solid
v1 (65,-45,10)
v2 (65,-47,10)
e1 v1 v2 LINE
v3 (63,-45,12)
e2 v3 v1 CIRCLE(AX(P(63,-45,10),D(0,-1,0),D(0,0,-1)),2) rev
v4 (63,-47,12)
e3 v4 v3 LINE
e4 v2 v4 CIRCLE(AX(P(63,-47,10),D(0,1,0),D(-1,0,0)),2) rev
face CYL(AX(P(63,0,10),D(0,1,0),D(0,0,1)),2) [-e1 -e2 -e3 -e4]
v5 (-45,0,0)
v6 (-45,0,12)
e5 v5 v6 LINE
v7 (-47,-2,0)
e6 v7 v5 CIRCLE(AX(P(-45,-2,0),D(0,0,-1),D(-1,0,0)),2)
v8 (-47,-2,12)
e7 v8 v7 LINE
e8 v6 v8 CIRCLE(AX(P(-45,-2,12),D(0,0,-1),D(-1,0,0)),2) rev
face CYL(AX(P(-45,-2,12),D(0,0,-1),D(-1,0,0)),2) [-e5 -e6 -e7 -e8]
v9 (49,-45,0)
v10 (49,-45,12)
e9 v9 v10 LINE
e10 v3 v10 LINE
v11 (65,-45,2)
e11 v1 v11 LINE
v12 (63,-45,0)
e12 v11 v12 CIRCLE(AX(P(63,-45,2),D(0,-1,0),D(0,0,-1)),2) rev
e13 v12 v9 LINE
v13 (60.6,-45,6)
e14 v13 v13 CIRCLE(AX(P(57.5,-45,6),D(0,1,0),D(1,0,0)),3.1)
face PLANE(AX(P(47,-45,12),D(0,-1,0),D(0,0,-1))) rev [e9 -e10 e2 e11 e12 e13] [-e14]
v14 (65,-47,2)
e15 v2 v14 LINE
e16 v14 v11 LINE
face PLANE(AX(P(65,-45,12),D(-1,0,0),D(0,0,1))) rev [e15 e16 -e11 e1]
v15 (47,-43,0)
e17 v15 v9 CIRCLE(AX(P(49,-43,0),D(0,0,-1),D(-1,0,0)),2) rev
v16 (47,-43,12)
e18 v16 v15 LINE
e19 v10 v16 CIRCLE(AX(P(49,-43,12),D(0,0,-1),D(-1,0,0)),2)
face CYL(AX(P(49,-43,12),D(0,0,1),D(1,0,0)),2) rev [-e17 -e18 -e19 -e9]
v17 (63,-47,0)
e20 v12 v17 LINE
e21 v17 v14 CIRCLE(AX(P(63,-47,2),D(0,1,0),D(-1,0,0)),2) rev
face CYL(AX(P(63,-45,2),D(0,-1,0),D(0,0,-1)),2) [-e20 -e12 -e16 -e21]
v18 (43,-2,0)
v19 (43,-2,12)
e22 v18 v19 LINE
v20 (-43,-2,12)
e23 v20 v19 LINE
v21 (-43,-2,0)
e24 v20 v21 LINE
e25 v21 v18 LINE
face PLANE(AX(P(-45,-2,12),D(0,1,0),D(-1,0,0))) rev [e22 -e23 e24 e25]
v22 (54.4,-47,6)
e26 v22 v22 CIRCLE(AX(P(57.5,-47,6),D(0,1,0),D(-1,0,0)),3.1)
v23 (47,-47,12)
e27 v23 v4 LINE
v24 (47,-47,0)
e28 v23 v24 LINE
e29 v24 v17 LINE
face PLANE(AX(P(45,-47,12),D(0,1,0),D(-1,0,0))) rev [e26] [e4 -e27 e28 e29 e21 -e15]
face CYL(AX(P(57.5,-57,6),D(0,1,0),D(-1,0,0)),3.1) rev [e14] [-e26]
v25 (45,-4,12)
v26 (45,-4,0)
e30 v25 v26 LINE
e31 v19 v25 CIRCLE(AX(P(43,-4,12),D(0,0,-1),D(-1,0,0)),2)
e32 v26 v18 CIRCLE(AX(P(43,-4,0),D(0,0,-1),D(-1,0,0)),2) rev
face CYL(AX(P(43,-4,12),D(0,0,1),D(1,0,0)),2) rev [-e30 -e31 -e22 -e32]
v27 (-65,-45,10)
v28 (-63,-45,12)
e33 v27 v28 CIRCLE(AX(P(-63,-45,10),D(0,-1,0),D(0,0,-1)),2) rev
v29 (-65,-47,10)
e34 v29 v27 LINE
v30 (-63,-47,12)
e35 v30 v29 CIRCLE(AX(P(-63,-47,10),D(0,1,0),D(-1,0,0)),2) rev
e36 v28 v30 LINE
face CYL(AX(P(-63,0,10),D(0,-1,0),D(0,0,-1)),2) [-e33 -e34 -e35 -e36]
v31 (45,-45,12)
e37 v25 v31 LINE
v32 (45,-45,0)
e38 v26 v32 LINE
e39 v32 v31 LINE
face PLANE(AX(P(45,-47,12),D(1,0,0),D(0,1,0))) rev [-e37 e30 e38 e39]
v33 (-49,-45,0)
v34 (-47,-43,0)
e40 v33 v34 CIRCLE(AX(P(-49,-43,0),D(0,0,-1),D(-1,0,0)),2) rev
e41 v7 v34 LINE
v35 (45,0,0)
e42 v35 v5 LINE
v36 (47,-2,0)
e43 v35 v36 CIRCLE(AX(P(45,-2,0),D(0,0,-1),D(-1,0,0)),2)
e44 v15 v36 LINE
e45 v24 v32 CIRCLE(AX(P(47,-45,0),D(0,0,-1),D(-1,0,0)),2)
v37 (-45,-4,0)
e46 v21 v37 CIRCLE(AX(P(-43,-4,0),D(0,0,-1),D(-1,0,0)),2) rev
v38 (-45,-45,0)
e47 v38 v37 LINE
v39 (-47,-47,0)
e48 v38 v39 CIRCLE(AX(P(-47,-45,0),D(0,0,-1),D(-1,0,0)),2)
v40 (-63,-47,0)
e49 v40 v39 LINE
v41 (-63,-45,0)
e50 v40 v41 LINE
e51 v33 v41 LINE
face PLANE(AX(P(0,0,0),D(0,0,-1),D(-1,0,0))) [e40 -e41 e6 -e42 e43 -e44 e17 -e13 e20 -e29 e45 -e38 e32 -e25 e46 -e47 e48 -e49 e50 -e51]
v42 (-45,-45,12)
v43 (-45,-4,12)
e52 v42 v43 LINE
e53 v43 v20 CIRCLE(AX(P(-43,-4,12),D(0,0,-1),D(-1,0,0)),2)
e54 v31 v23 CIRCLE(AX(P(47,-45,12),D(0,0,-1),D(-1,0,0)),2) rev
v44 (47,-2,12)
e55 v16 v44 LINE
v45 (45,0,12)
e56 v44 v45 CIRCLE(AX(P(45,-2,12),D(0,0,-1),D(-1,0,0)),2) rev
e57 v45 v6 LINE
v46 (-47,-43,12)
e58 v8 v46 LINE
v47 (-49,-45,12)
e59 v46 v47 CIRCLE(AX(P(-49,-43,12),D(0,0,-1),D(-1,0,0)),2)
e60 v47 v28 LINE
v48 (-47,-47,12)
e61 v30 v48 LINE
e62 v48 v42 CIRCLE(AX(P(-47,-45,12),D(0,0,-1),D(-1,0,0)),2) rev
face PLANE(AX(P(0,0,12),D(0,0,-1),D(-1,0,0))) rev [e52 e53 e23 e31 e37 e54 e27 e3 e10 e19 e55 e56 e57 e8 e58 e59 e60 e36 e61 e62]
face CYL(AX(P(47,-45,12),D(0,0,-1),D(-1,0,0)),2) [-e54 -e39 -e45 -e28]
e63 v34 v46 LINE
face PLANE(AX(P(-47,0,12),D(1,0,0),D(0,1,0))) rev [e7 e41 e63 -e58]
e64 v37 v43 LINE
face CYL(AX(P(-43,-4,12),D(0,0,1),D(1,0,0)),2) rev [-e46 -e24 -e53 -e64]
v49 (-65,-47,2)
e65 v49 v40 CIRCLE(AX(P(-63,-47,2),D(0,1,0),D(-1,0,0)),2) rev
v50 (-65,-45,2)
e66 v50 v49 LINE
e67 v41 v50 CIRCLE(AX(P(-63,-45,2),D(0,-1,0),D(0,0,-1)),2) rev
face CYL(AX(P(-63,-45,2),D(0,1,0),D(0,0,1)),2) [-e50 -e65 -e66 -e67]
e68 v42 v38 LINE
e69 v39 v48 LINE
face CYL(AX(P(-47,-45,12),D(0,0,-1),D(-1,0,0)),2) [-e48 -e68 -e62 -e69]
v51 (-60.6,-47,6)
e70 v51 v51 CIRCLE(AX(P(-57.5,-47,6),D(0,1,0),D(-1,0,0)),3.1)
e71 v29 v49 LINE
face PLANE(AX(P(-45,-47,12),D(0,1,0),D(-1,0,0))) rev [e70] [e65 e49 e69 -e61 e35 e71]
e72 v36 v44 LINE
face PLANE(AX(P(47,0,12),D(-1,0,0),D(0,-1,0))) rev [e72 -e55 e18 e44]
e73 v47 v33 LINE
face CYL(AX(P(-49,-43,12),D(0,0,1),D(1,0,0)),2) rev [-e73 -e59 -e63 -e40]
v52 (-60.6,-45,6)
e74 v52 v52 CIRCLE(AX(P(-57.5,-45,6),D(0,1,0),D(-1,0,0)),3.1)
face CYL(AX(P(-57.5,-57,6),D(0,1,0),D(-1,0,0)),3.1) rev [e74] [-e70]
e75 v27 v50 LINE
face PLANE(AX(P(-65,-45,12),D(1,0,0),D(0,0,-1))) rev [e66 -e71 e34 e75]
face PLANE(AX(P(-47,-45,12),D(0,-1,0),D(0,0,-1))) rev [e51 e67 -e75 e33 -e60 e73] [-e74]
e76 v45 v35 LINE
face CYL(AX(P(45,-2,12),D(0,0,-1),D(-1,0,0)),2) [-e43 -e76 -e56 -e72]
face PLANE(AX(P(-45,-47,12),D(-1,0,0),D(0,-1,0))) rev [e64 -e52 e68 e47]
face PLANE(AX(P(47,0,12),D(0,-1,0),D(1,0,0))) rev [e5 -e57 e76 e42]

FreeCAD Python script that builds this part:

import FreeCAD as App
import Part
import Sketcher

V = App.Vector
Q = App.Units.Quantity


def edges_at(feature, points):
    """Names of the edges that pass closest to the given points."""
    edges = feature.Shape.Edges
    near = lambda p: min(range(len(edges)), key=lambda i: edges[i].distToShape(Part.Vertex(*p))[0])
    return sorted({f"Edge{near(p) + 1}" for p in points})

doc = App.newDocument("Part")
params = doc.addObject("Spreadsheet::Sheet", "Params")
for row, (alias, value) in enumerate([
    ("sketch1_width", "94 mm"),
    ("sketch1_width2", "18 mm"),
    ("sketch1_width3", "20 mm"),
    ("sketch1_height", "45 mm"),
    ("sketch1_height2", "2 mm"),
    ("pad1_length", "12 mm"),
    ("fillet_radius", "2 mm"),
    ("sketch2_diameter", "6.2 mm"),
    ("pocket1_length", "12 mm"),
], start=1):
    params.set(f"A{row}", alias)
    params.set(f"B{row}", "=" + value)
    params.setAlias(f"B{row}", alias)

body = doc.addObject("PartDesign::Body", "Body")

# Sketch on XY plane
sketch1 = doc.addObject("Sketcher::SketchObject", "Sketch")
body.addObject(sketch1)
sketch1.AttachmentSupport = (doc.XY_Plane, [""])
sketch1.MapMode = "FlatFace"
sketch1.addGeometry([
    Part.LineSegment(V(47, 0, 0), V(-47, 0, 0)),  # 0
    Part.LineSegment(V(-47, 0, 0), V(-47, -45, 0)),  # 1
    Part.LineSegment(V(-47, -45, 0), V(-65, -45, 0)),  # 2
    Part.LineSegment(V(-65, -45, 0), V(-65, -47, 0)),  # 3
    Part.LineSegment(V(-65, -47, 0), V(-45, -47, 0)),  # 4
    Part.LineSegment(V(-45, -47, 0), V(-45, -2, 0)),  # 5
    Part.LineSegment(V(-45, -2, 0), V(45, -2, 0)),  # 6
    Part.LineSegment(V(45, -2, 0), V(45, -47, 0)),  # 7
    Part.LineSegment(V(45, -47, 0), V(65, -47, 0)),  # 8
    Part.LineSegment(V(65, -47, 0), V(65, -45, 0)),  # 9
    Part.LineSegment(V(65, -45, 0), V(47, -45, 0)),  # 10
    Part.LineSegment(V(47, -45, 0), V(47, 0, 0)),  # 11
], False)
sketch1.addConstraint([
    Sketcher.Constraint("Coincident", 0, 2, 1, 1),
    Sketcher.Constraint("Coincident", 1, 2, 2, 1),
    Sketcher.Constraint("Coincident", 2, 2, 3, 1),
    Sketcher.Constraint("Coincident", 3, 2, 4, 1),
    Sketcher.Constraint("Coincident", 4, 2, 5, 1),
    Sketcher.Constraint("Coincident", 5, 2, 6, 1),
    Sketcher.Constraint("Coincident", 6, 2, 7, 1),
    Sketcher.Constraint("Coincident", 7, 2, 8, 1),
    Sketcher.Constraint("Coincident", 8, 2, 9, 1),
    Sketcher.Constraint("Coincident", 9, 2, 10, 1),
    Sketcher.Constraint("Coincident", 10, 2, 11, 1),
    Sketcher.Constraint("Coincident", 11, 2, 0, 1),
    Sketcher.Constraint("Horizontal", 0),
    Sketcher.Constraint("Vertical", 1),
    Sketcher.Constraint("Horizontal", 2),
    Sketcher.Constraint("Vertical", 3),
    Sketcher.Constraint("Horizontal", 4),
    Sketcher.Constraint("Vertical", 5),
    Sketcher.Constraint("Horizontal", 6),
    Sketcher.Constraint("Vertical", 7),
    Sketcher.Constraint("Horizontal", 8),
    Sketcher.Constraint("Vertical", 9),
    Sketcher.Constraint("Horizontal", 10),
    Sketcher.Constraint("Vertical", 11),
    Sketcher.Constraint("Symmetric", 0, 2, 11, 2, -1, 1),
    Sketcher.Constraint("Symmetric", 4, 2, 7, 2, -2),
    Sketcher.Constraint("Symmetric", 2, 2, 9, 2, -2),
    Sketcher.Constraint("Equal", 1, 5),
    Sketcher.Constraint("DistanceX", 0, 2, 0, 1, Q("94 mm")),
    Sketcher.Constraint("DistanceX", 2, 2, 2, 1, Q("18 mm")),
    Sketcher.Constraint("DistanceX", 4, 1, 4, 2, Q("20 mm")),
    Sketcher.Constraint("DistanceY", 1, 2, 1, 1, Q("45 mm")),
    Sketcher.Constraint("DistanceY", 3, 2, 3, 1, Q("2 mm")),
])
sketch1.setExpression("Constraints[28]", "Params.sketch1_width")
sketch1.setExpression("Constraints[29]", "Params.sketch1_width2")
sketch1.setExpression("Constraints[30]", "Params.sketch1_width3")
sketch1.setExpression("Constraints[31]", "Params.sketch1_height")
sketch1.setExpression("Constraints[32]", "Params.sketch1_height2")
pad1 = doc.addObject("PartDesign::Pad", "Pad")
body.addObject(pad1)
pad1.Profile = sketch1
pad1.setExpression("Length", "Params.pad1_length")
doc.recompute()

fillet = doc.addObject("PartDesign::Fillet", "Fillet")
body.addObject(fillet)
fillet.Base = (pad1, edges_at(pad1, [
    (65, -46, 0),
    (-65, -46, 0),
    (-65, -46, 12),
    (45, -47, 6),
    (45, -2, 6),
    (-45, -2, 6),
    (-45, -47, 6),
    (-47, -45, 6),
    (-47, 0, 6),
    (47, 0, 6),
    (47, -45, 6),
    (65, -46, 12),
]))
fillet.setExpression("Radius", "Params.fillet_radius")

# Sketch on XZ plane
sketch2 = doc.addObject("Sketcher::SketchObject", "Sketch001")
body.addObject(sketch2)
sketch2.AttachmentSupport = (doc.XZ_Plane, [""])
sketch2.MapMode = "FlatFace"
sketch2.AttachmentOffset = App.Placement(V(0, 0, 45), App.Rotation())
sketch2.addGeometry([
    Part.Circle(V(-57.5, 6, 0), V(0, 0, 1), 3.1),
    Part.Circle(V(57.5, 6, 0), V(0, 0, 1), 3.1),
], False)
sketch2.addConstraint([
    Sketcher.Constraint("Equal", 0, 1),
    Sketcher.Constraint("Symmetric", 0, 3, 1, 3, -2),
    Sketcher.Constraint("Diameter", 0, Q("6.2 mm")),
    Sketcher.Constraint("DistanceY", -1, 1, 0, 3, Q("6 mm")),
    Sketcher.Constraint("DistanceX", 0, 3, 1, 3, Q("115 mm")),
])
sketch2.setExpression("Constraints[2]", "Params.sketch2_diameter")
pocket1 = doc.addObject("PartDesign::Pocket", "Pocket")
body.addObject(pocket1)
pocket1.Profile = sketch2
pocket1.setExpression("Length", "Params.pocket1_length")
pocket1.Reversed = True

doc.recompute()
